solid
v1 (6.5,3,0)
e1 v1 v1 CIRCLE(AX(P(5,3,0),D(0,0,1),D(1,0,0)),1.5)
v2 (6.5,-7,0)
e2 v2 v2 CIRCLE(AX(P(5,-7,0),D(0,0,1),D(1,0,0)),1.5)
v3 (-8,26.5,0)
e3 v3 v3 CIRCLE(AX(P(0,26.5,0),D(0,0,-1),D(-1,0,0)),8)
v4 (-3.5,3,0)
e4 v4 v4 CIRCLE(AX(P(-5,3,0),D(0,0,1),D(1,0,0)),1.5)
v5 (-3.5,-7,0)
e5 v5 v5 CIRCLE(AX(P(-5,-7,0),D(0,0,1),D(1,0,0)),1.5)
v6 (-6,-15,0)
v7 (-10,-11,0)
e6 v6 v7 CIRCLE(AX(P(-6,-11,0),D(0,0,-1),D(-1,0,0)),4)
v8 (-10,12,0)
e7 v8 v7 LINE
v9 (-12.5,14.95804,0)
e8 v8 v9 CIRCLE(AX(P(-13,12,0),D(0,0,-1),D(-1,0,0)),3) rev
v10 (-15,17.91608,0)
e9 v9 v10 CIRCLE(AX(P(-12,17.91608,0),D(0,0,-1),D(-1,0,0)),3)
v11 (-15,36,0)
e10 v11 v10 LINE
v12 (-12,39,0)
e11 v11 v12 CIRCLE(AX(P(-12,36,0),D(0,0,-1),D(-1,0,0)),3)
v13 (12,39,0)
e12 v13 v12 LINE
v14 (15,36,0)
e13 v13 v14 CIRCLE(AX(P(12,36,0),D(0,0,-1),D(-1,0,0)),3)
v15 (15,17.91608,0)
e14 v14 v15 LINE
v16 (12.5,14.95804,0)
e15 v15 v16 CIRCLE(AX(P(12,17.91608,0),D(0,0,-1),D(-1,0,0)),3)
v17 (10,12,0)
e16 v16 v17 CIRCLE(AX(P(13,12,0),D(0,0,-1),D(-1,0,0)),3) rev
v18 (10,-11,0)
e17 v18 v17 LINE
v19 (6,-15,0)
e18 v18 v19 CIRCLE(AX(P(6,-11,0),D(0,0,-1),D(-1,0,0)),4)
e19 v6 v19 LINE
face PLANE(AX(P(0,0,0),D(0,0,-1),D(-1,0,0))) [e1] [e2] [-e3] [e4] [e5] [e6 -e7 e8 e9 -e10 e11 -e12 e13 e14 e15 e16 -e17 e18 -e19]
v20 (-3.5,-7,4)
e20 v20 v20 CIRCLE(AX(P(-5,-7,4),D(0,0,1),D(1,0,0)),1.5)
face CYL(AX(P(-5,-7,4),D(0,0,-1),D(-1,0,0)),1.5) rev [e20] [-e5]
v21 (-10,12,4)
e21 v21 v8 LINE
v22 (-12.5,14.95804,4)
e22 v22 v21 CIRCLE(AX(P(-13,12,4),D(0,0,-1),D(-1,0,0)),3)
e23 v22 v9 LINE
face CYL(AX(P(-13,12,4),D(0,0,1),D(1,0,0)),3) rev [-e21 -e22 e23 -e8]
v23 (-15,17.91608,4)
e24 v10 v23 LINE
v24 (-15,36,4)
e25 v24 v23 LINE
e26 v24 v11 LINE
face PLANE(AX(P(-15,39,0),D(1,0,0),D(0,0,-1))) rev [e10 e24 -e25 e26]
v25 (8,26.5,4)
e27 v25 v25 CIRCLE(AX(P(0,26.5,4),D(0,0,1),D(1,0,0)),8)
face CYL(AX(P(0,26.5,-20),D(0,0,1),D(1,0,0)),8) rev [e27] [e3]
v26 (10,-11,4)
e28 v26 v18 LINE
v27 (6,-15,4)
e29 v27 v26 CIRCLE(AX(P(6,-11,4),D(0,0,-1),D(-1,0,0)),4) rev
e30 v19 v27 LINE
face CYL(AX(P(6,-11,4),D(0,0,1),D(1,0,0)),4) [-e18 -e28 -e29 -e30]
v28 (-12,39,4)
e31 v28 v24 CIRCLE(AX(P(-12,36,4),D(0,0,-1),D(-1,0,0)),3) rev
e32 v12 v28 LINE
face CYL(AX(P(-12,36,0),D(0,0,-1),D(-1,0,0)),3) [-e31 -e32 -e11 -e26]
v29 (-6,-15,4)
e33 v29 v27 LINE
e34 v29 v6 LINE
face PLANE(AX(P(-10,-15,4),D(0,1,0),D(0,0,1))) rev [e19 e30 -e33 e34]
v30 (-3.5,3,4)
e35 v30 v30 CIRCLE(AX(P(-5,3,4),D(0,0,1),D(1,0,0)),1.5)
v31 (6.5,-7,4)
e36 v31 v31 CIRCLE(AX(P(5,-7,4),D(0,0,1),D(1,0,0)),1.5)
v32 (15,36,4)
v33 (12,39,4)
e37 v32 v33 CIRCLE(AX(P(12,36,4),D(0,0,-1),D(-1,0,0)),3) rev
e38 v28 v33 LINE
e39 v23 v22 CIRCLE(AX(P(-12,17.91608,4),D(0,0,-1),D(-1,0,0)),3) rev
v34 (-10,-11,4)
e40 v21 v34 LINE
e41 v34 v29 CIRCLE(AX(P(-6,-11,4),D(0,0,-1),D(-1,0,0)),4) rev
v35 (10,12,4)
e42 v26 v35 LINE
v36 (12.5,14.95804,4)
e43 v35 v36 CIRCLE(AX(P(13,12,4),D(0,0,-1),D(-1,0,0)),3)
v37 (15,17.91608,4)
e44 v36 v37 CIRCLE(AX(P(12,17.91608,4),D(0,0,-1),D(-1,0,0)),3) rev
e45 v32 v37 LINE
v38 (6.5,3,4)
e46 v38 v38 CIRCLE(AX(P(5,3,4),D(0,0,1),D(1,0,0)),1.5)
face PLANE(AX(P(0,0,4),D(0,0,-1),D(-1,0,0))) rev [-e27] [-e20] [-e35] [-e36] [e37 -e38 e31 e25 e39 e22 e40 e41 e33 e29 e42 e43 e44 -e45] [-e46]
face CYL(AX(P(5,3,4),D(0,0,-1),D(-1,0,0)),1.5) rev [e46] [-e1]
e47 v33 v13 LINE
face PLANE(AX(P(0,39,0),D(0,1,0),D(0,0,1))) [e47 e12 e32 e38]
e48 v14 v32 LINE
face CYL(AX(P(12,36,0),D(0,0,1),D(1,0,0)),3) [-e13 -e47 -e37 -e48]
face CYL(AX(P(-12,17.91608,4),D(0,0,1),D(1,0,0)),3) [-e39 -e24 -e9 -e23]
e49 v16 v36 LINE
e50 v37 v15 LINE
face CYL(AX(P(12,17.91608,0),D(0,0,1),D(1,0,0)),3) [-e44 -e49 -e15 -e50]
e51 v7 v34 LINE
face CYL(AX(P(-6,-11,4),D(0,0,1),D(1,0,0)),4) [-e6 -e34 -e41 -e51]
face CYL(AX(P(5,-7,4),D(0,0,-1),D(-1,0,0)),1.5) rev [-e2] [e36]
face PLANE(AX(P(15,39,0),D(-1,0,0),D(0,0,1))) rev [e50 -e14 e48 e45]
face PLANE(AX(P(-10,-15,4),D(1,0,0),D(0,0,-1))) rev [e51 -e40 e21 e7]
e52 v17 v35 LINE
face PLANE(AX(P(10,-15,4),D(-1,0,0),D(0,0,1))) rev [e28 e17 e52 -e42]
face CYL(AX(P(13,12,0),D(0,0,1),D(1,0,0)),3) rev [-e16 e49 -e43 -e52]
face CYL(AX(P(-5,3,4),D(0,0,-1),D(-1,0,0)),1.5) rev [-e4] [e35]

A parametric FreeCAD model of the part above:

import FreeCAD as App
import Part
import Sketcher

V = App.Vector


def edges_at(feature, points):
    """Names of the edges that pass closest to the given points."""
    edges = feature.Shape.Edges
    near = lambda p: min(range(len(edges)), key=lambda i: edges[i].distToShape(Part.Vertex(*p))[0])
    return sorted({f"Edge{near(p) + 1}" for p in points})

doc = App.newDocument("Part")
body = doc.addObject("PartDesign::Body", "Body")

sketch1 = body.newObject("Sketcher::SketchObject", "Sketch")
sketch1.AttachmentSupport = (doc.getObject("XY_Plane"), [""])
sketch1.MapMode = "FlatFace"
sketch1.addGeometry([
    Part.LineSegment(V(-10, 15, 0), V(-10, -15, 0)),
    Part.LineSegment(V(-10, -15, 0), V(10, -15, 0)),
    Part.LineSegment(V(10, -15, 0), V(10, 15, 0)),
    Part.LineSegment(V(10, 15, 0), V(-10, 15, 0)),
    Part.Circle(V(-5, -7, 0), V(0, 0, 1), 1.5),
    Part.Circle(V(5, -7, 0), V(0, 0, 1), 1.5),
    Part.Circle(V(-5, 3, 0), V(0, 0, 1), 1.5),
    Part.Circle(V(5, 3, 0), V(0, 0, 1), 1.5),
], False)
sketch1.addConstraint([
    Sketcher.Constraint("Coincident", 0, 2, 1, 1),
    Sketcher.Constraint("Coincident", 1, 2, 2, 1),
    Sketcher.Constraint("Coincident", 2, 2, 3, 1),
    Sketcher.Constraint("Coincident", 3, 2, 0, 1),
    Sketcher.Constraint("Vertical", 0),
    Sketcher.Constraint("Horizontal", 1),
    Sketcher.Constraint("Vertical", 2),
    Sketcher.Constraint("Horizontal", 3),
    Sketcher.Constraint("Equal", 4, 5),
    Sketcher.Constraint("Equal", 5, 6),
    Sketcher.Constraint("Equal", 6, 7),
    Sketcher.Constraint("Symmetric", 0, 2, 2, 2, -1, 1),
    Sketcher.Constraint("Symmetric", 4, 3, 5, 3, -2),
    Sketcher.Constraint("Symmetric", 6, 3, 7, 3, -2),
    Sketcher.Constraint("Vertical", 4, 3, 6, 3),
    Sketcher.Constraint("Diameter", 4, 3.0),
    Sketcher.Constraint("DistanceX", 1, 1, 1, 2, 20.0),
    Sketcher.Constraint("DistanceY", 0, 2, 0, 1, 30.0),
    Sketcher.Constraint("DistanceX", 4, 3, -1, 1, 5.0),
    Sketcher.Constraint("DistanceY", 4, 3, -1, 1, 7.0),
    Sketcher.Constraint("DistanceY", -1, 1, 6, 3, 3.0),
])
pad1 = body.newObject("PartDesign::Pad", "Pad")
pad1.Profile = sketch1
pad1.Length = 4

sketch2 = body.newObject("Sketcher::SketchObject", "Sketch001")
sketch2.AttachmentSupport = (doc.getObject("XZ_Plane"), [""])
sketch2.MapMode = "FlatFace"
sketch2.AttachmentOffset = App.Placement(V(0, 0, -15), App.Rotation())
sketch2.addGeometry([
    Part.LineSegment(V(-15, 0, 0), V(-15, 4, 0)),
    Part.LineSegment(V(-15, 4, 0), V(15, 4, 0)),
    Part.LineSegment(V(15, 4, 0), V(15, 0, 0)),
    Part.LineSegment(V(15, 0, 0), V(-15, 0, 0)),
], False)
sketch2.addConstraint([
    Sketcher.Constraint("Coincident", 0, 2, 1, 1),
    Sketcher.Constraint("Coincident", 1, 2, 2, 1),
    Sketcher.Constraint("Coincident", 2, 2, 3, 1),
    Sketcher.Constraint("Coincident", 3, 2, 0, 1),
    Sketcher.Constraint("Vertical", 0),
    Sketcher.Constraint("Horizontal", 1),
    Sketcher.Constraint("Vertical", 2),
    Sketcher.Constraint("Horizontal", 3),
    Sketcher.Constraint("Symmetric", 2, 2, 3, 2, -1, 1),
    Sketcher.Constraint("DistanceX", 1, 1, 1, 2, 30.0),
    Sketcher.Constraint("DistanceY", 0, 1, 0, 2, 4.0),
])
pad2 = body.newObject("PartDesign::Pad", "Pad001")
pad2.Profile = sketch2
pad2.Length = 24
pad2.Reversed = True
doc.recompute()

fillet = body.newObject("PartDesign::Fillet", "Fillet")
fillet.Base = (pad2, edges_at(pad2, [(-10, 15, 2), (10, 15, 2)]))
fillet.Radius = 3

sketch3 = body.newObject("Sketcher::SketchObject", "Sketch002")
sketch3.AttachmentSupport = (doc.getObject("XY_Plane"), [""])
sketch3.MapMode = "FlatFace"
sketch3.AttachmentOffset = App.Placement(V(0, 0, 4), App.Rotation())
sketch3.addGeometry(Part.Circle(V(0, 26.5, 0), V(0, 0, 1), 8), False)
sketch3.addConstraint([
    Sketcher.Constraint("PointOnObject", 0, 3, -2),
    Sketcher.Constraint("Diameter", 0, 16.0),
    Sketcher.Constraint("DistanceY", -1, 1, 0, 3, 26.5),
])
pocket1 = body.newObject("PartDesign::Pocket", "Pocket")
pocket1.Profile = sketch3
pocket1.Length = 24
doc.recompute()

fillet2 = body.newObject("PartDesign::Fillet", "Fillet001")
fillet2.Base = (pocket1, edges_at(pocket1, [
    (15, 15, 2),
    (15, 39, 2),
    (-15, 39, 2),
    (-15, 15, 2),
]))
fillet2.Radius = 3
doc.recompute()

fillet3 = body.newObject("PartDesign::Fillet", "Fillet002")
fillet3.Base = (fillet2, edges_at(fillet2, [(-10, -15, 2)]))
fillet3.Radius = 4
doc.recompute()

fillet4 = body.newObject("PartDesign::Fillet", "Fillet003")
fillet4.Base = (fillet3, edges_at(fillet3, [(10, -15, 2)]))
fillet4.Radius = 4

doc.recompute()
